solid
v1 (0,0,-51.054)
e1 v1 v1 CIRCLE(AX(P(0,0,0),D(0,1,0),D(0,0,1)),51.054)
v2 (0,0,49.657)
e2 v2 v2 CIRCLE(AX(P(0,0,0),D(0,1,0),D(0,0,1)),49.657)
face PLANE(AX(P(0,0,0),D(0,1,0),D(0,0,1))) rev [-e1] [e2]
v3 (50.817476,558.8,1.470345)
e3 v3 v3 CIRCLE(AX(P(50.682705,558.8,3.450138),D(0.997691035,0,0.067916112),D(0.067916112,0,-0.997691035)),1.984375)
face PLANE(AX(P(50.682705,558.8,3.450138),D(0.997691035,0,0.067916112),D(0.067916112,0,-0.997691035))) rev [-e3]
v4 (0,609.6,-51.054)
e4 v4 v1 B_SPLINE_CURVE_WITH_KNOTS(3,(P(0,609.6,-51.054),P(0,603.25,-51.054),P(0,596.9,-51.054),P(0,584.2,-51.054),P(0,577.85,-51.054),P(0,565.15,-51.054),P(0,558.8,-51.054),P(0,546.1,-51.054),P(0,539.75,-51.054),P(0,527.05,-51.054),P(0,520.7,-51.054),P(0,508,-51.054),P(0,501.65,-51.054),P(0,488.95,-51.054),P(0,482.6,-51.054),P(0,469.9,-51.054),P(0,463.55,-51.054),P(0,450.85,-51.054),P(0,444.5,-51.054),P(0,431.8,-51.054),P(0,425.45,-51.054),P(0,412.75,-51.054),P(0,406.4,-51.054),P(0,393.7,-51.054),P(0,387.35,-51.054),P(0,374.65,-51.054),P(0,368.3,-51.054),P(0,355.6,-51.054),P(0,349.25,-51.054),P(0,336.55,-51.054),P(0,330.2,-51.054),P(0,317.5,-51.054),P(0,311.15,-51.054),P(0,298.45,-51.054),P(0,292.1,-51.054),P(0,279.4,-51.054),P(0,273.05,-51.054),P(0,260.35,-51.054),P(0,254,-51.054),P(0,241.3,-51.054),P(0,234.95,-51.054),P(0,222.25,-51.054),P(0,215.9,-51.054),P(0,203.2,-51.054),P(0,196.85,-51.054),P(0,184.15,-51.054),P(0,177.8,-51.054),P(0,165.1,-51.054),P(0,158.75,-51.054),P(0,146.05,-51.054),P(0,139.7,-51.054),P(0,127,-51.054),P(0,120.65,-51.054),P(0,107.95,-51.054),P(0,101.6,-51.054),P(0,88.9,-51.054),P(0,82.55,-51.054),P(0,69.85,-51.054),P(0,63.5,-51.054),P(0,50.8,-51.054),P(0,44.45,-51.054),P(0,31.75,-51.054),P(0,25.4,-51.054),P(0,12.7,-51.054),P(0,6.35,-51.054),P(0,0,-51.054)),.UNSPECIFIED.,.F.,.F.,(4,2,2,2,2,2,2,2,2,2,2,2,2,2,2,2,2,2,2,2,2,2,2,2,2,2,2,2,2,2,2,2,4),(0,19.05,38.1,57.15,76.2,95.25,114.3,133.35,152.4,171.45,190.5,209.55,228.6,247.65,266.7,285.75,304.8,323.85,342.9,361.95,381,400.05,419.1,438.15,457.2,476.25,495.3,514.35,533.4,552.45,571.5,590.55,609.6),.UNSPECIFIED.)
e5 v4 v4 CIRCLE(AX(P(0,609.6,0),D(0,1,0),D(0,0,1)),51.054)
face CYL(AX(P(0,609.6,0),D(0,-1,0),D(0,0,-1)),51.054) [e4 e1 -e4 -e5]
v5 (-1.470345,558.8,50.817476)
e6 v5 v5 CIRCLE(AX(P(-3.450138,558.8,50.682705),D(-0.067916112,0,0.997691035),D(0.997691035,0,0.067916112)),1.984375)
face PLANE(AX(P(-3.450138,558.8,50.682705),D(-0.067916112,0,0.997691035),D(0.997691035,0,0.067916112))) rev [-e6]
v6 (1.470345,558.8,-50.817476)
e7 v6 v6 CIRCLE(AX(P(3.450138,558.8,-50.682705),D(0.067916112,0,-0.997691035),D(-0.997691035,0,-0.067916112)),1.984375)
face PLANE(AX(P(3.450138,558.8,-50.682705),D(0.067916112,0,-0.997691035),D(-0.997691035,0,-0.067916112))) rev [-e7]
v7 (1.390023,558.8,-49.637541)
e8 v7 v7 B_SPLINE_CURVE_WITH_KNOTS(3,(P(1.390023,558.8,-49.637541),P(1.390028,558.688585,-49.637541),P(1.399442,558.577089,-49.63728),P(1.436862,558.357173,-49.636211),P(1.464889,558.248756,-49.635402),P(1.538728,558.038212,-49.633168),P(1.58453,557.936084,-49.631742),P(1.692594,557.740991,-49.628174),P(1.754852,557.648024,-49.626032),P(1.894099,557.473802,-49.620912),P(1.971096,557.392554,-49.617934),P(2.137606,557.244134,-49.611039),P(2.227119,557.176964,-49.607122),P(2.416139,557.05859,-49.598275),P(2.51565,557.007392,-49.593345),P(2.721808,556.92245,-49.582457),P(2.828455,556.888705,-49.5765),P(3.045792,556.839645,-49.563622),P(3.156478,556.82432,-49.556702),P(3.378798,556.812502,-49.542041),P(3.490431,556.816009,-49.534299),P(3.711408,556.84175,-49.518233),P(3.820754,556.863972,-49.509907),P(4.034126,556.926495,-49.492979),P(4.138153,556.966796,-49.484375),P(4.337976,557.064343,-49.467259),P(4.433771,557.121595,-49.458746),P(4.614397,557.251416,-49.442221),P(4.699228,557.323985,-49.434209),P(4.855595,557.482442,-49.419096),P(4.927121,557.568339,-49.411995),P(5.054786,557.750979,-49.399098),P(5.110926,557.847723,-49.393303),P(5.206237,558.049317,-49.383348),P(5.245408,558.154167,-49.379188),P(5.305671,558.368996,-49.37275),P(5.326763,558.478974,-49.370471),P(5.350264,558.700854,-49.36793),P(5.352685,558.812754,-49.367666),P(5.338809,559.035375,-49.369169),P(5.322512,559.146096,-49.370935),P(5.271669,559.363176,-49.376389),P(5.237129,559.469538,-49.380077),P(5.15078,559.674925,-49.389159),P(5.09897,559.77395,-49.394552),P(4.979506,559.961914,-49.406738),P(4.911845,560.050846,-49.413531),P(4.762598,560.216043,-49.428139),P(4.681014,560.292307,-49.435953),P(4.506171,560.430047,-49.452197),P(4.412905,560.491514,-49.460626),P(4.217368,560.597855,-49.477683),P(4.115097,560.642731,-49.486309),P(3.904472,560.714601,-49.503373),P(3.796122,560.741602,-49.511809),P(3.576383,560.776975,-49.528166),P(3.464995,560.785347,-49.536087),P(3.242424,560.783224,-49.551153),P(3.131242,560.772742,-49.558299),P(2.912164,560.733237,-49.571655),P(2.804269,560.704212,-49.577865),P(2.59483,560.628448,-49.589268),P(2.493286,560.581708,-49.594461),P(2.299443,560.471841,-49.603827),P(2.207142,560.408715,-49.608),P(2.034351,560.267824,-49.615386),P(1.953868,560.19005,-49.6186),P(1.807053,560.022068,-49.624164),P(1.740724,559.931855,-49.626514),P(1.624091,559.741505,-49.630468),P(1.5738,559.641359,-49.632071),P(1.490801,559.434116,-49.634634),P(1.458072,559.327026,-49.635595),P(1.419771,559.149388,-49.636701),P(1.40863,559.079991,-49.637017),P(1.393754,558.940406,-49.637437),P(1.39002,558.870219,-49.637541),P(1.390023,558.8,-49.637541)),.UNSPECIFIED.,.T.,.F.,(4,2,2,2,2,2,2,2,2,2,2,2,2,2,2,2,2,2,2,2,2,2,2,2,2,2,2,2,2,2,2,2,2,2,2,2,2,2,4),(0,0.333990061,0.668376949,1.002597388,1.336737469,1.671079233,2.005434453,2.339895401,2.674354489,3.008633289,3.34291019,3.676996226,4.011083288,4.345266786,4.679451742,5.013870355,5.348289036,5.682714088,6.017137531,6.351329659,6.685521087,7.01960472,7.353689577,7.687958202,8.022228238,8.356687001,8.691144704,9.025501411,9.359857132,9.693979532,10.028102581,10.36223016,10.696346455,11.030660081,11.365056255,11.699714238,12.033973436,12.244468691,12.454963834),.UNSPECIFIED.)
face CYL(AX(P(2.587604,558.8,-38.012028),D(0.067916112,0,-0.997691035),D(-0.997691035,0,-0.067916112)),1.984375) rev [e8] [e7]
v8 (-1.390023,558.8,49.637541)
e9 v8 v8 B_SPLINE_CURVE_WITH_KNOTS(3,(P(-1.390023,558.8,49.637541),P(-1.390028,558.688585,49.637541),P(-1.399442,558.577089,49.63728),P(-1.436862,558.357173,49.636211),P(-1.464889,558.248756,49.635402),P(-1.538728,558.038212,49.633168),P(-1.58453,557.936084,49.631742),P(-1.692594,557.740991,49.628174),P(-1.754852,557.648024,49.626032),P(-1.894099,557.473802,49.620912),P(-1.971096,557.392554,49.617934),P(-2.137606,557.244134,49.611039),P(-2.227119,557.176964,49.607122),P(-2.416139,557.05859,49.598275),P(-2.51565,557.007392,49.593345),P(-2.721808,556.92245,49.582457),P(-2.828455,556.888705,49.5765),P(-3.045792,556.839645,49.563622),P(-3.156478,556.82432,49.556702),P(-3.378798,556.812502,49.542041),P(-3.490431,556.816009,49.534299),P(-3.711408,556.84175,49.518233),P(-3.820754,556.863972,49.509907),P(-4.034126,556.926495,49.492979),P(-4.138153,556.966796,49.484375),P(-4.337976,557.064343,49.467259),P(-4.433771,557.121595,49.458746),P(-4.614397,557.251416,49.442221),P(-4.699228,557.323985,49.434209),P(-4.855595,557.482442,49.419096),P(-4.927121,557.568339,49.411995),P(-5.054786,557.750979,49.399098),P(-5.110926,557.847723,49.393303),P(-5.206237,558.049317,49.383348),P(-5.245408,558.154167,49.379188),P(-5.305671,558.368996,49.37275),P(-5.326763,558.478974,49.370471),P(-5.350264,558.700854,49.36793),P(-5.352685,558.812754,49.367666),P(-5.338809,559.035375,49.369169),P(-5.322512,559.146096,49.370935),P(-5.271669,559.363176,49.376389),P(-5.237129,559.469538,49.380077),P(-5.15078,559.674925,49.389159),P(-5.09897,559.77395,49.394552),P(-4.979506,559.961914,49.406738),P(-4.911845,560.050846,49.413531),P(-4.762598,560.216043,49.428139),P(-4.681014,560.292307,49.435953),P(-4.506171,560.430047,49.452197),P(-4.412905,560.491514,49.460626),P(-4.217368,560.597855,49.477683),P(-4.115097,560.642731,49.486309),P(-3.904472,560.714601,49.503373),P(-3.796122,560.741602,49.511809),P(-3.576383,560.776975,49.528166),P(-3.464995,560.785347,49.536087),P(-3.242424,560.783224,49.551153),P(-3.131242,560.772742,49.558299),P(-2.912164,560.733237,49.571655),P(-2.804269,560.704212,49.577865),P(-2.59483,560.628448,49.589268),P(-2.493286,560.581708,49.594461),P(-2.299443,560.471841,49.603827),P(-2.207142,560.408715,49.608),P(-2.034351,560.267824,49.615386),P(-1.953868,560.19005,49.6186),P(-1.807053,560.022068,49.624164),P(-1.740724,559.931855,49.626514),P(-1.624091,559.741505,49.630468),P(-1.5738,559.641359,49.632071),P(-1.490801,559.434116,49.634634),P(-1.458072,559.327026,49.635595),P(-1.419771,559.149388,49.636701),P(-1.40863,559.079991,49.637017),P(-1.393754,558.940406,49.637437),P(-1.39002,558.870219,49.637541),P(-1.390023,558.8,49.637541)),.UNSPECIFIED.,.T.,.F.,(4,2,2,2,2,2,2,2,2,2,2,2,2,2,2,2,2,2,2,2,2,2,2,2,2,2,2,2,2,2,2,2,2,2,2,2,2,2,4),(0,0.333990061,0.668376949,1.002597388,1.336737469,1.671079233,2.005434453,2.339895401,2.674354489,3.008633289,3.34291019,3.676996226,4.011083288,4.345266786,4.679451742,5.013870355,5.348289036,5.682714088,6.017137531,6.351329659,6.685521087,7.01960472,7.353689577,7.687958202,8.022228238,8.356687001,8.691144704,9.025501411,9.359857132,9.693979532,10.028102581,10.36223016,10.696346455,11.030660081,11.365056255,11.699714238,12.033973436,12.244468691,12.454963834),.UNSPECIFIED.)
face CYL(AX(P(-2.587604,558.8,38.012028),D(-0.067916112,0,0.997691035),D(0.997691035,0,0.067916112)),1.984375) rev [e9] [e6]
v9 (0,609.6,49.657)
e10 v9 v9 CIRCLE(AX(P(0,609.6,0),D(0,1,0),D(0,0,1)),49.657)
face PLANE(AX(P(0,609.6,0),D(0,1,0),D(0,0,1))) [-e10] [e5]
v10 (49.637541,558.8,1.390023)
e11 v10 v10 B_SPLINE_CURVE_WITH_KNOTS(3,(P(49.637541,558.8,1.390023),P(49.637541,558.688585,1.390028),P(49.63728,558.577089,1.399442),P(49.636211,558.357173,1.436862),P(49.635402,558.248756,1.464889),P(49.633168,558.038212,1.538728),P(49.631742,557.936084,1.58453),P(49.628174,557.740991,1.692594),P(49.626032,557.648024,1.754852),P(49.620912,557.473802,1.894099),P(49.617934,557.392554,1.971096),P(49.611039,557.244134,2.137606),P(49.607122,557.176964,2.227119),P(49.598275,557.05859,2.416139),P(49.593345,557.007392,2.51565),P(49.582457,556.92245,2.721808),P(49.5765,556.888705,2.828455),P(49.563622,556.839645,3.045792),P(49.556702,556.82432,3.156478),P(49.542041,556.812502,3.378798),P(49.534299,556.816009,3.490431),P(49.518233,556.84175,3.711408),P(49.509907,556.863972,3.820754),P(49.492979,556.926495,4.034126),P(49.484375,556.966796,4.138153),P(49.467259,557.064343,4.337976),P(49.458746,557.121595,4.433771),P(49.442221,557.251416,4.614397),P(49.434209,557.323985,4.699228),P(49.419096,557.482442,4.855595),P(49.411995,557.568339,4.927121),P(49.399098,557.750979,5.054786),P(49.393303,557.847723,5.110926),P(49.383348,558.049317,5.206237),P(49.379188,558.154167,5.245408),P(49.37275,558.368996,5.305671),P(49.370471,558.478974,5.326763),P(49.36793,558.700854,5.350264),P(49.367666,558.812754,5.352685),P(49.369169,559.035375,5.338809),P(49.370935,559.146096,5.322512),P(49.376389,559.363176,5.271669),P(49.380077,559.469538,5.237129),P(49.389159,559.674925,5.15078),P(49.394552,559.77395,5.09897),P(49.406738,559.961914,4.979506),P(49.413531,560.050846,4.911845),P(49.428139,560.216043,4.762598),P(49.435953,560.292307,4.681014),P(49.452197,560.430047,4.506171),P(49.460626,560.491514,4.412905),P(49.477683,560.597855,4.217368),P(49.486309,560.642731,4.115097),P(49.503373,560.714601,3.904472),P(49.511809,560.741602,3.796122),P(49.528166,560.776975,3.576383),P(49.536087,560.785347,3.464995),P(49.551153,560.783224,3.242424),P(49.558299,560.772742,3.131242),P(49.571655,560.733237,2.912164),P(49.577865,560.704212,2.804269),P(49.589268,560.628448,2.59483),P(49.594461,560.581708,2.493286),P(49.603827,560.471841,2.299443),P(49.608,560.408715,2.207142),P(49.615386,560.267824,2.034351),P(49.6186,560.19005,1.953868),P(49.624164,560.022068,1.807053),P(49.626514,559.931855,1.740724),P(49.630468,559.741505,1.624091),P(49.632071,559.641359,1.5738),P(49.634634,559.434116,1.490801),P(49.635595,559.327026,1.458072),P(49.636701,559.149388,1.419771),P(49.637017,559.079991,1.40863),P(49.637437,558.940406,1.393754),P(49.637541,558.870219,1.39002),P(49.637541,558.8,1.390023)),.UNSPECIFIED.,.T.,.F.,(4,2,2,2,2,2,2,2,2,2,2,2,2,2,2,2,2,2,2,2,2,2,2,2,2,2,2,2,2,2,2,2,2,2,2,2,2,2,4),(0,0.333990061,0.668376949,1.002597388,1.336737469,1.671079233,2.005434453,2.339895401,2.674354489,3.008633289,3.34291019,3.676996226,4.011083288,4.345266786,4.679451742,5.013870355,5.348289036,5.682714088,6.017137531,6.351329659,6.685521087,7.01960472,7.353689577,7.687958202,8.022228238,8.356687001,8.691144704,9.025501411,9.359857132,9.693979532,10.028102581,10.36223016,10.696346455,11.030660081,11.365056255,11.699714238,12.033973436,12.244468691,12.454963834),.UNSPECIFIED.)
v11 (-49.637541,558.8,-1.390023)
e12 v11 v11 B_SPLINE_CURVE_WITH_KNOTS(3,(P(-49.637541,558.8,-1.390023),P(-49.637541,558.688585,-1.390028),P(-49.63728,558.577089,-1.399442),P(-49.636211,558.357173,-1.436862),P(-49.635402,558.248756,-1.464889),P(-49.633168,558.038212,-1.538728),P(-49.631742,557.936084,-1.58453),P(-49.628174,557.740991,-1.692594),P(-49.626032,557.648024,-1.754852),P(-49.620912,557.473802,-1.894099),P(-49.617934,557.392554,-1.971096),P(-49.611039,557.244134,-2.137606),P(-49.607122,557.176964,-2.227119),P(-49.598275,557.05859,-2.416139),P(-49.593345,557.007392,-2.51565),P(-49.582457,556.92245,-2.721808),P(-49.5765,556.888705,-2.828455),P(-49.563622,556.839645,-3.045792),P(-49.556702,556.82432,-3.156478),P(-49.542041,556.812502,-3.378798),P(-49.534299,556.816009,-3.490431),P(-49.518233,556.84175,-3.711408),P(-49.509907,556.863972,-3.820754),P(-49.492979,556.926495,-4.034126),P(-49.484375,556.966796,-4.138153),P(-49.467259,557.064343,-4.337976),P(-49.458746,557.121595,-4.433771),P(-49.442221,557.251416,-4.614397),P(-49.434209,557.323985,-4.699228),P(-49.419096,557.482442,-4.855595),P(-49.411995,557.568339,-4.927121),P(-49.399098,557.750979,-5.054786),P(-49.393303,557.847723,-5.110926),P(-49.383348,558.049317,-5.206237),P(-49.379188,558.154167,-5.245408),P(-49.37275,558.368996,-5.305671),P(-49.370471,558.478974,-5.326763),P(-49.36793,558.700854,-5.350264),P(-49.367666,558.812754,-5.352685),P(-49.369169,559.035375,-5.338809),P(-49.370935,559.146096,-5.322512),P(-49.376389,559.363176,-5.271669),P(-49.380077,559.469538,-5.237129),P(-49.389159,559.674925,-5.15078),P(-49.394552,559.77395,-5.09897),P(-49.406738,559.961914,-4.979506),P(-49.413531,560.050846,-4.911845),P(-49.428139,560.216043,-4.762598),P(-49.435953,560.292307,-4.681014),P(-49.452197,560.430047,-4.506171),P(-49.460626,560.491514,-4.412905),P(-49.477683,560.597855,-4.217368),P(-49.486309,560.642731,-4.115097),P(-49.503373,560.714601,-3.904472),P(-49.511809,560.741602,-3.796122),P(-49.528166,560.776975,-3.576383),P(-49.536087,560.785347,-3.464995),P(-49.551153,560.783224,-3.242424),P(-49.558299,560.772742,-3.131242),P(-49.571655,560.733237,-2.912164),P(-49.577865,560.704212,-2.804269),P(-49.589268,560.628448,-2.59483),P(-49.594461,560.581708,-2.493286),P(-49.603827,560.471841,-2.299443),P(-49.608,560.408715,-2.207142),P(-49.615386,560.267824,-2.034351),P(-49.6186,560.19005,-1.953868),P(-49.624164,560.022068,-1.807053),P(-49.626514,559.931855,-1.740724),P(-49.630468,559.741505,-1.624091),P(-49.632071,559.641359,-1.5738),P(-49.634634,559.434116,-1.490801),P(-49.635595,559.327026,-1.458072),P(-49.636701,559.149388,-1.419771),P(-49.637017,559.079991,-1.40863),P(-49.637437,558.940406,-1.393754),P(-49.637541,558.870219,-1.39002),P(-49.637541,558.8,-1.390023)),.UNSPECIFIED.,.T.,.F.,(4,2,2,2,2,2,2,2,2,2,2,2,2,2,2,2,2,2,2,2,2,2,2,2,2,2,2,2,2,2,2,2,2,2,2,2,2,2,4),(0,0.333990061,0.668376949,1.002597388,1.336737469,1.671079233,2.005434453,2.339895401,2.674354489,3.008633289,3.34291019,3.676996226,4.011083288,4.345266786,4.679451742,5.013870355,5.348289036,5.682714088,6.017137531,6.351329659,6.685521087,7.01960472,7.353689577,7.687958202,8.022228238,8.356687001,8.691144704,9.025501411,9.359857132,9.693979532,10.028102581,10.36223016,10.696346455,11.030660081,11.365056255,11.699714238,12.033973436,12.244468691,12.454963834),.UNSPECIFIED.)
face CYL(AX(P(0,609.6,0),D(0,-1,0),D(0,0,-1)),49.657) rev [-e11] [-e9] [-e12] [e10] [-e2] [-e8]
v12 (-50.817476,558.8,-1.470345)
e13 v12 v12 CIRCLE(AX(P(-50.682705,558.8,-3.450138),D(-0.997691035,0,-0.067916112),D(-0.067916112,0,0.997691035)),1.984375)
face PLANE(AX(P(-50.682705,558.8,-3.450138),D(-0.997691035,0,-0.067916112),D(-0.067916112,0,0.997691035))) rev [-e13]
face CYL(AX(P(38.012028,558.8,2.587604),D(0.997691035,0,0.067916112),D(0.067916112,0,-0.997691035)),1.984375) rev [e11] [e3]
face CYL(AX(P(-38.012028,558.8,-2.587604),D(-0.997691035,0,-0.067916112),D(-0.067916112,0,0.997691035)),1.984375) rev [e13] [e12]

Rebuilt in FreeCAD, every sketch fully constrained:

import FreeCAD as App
import Part
import Sketcher
Q = App.Units.Quantity

doc = App.newDocument("Part")
params = doc.addObject("Spreadsheet::Sheet", "Params")
for row, (alias, value) in enumerate([
    ("sketch1_diameter", "4.02 in"),
    ("sketch1_diameter2", "3.91 in"),
    ("pad1_length", "24 in"),
    ("sketch2_diameter", "0.15625 in"),
    ("pocket1_length", "0.5 in"),
], start=1):
    params.set(f"A{row}", alias)
    params.set(f"B{row}", "=" + value)
    params.setAlias(f"B{row}", alias)

body = doc.addObject("PartDesign::Body", "Body")

# Sketch on XZ plane
sketch1 = doc.addObject("Sketcher::SketchObject", "Sketch")
body.addObject(sketch1)
sketch1.AttachmentSupport = (doc.XZ_Plane, [""])
sketch1.MapMode = "FlatFace"
sketch1.addGeometry([
    Part.Circle(App.Vector(0, 0, 0), App.Vector(0, 0, 1), 51.054),
    Part.Circle(App.Vector(0, 0, 0), App.Vector(0, 0, 1), 49.657),
], False)
sketch1.addConstraint([
    Sketcher.Constraint("Coincident", 0, 3, -1, 1),
    Sketcher.Constraint("Coincident", 1, 3, -1, 1),
    Sketcher.Constraint("Diameter", 0, Q("4.02 in")),
    Sketcher.Constraint("Diameter", 1, Q("3.91 in")),
])
sketch1.setExpression("Constraints[2]", "Params.sketch1_diameter")
sketch1.setExpression("Constraints[3]", "Params.sketch1_diameter2")
pad1 = doc.addObject("PartDesign::Pad", "Pad")
body.addObject(pad1)
pad1.Profile = sketch1
pad1.setExpression("Length", "Params.pad1_length")
pad1.Reversed = True

# Sketch on an angled plane
sketch2 = doc.addObject("Sketcher::SketchObject", "Sketch001")
body.addObject(sketch2)
sketch2.Placement = App.Placement(App.Vector(122.899951, 815.595372, -42.551363), App.Rotation(App.Vector(-0.997691035, 0, -0.067916112), App.Vector(0, 1, 0), App.Vector(0.067916112, 0, -0.997691035), "ZXY"))
sketch2.addGeometry(Part.Circle(App.Vector(119.726256, -256.795371, 0), App.Vector(0, 0, 1), 1.984375), False)
sketch2.addConstraint([
    Sketcher.Constraint("Diameter", 0, Q("0.15625 in")),
    Sketcher.Constraint("DistanceY", 0, 3, -1, 1, 256.795371),
    Sketcher.Constraint("DistanceX", -1, 1, 0, 3, 119.726256),
])
sketch2.setExpression("Constraints[0]", "Params.sketch2_diameter")
pocket1 = doc.addObject("PartDesign::Pocket", "Pocket")
body.addObject(pocket1)
pocket1.Profile = sketch2
pocket1.setExpression("Length", "Params.pocket1_length")
doc.recompute()

polarpattern = doc.addObject("PartDesign::PolarPattern", "PolarPattern")
body.addObject(polarpattern)
polarpattern.Originals = [pocket1]
polarpattern.Axis = (doc.Y_Axis, [""])
polarpattern.Angle = 360
polarpattern.Occurrences = 4
body.Tip = polarpattern

doc.recompute()
